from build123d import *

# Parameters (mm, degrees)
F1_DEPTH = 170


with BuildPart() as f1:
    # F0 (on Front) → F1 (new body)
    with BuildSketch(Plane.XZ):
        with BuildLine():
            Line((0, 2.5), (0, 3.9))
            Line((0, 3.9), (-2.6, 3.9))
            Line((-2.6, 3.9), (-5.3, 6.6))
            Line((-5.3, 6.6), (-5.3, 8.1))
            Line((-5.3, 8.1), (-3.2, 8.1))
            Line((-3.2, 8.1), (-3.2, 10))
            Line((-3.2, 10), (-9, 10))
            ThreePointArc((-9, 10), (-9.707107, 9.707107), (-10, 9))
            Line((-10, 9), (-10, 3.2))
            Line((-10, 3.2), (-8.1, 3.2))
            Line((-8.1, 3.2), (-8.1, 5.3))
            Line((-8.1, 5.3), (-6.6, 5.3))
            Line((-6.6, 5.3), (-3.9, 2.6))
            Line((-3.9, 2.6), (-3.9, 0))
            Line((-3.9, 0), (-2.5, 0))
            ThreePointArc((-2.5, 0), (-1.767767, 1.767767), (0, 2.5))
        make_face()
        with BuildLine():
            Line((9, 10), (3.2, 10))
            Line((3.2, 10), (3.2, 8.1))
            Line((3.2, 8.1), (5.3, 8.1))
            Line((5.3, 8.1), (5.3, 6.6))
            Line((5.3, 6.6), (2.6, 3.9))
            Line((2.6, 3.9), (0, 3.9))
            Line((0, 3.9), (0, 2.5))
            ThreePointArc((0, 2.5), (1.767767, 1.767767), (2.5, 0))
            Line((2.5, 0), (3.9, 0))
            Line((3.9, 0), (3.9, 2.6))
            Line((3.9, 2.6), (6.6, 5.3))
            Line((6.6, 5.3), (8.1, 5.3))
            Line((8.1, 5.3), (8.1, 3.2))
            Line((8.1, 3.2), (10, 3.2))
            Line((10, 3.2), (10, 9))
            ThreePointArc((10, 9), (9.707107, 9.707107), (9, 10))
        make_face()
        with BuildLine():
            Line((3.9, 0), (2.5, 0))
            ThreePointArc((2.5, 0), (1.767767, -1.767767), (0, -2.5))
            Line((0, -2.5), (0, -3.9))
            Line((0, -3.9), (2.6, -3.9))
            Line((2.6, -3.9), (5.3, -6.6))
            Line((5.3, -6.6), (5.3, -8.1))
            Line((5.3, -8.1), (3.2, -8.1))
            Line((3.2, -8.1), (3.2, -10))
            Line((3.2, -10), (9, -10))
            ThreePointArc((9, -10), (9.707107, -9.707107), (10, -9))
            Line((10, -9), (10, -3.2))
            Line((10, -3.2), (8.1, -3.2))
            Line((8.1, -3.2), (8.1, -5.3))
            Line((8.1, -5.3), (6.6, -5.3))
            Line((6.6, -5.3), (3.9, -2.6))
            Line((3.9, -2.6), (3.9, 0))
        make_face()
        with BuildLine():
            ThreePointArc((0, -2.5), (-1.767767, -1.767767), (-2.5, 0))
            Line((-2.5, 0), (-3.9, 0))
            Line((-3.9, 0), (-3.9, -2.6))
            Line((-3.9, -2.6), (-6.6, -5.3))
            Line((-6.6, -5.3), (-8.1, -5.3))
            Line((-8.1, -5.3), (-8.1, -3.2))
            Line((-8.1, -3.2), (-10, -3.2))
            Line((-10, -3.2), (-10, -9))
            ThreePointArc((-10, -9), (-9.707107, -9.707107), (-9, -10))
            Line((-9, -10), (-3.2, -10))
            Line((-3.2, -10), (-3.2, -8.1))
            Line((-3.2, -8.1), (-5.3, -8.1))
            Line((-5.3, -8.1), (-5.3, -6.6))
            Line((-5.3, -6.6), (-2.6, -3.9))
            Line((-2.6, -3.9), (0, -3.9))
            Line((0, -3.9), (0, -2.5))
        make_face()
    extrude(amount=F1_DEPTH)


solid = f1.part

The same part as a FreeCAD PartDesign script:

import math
import FreeCAD as App
import Part
import Sketcher

V = App.Vector
Q = App.Units.Quantity

doc = App.newDocument("Part")
body = doc.addObject("PartDesign::Body", "Body")

# Sketch on XZ plane
sketch1 = body.newObject("Sketcher::SketchObject", "Sketch")
sketch1.AttachmentSupport = (doc.getObject("XZ_Plane"), [""])
sketch1.MapMode = "FlatFace"
sketch1.addGeometry(Part.LineSegment(V(-2.6, 3.9, 0), V(-5.3, 6.6, 0)), False)
sketch1.addGeometry(Part.LineSegment(V(-5.3, 6.6, 0), V(-5.3, 8.1, 0)), False)
sketch1.addGeometry(Part.LineSegment(V(-5.3, 8.1, 0), V(-3.2, 8.1, 0)), False)
sketch1.addGeometry(Part.LineSegment(V(-3.2, 8.1, 0), V(-3.2, 10, 0)), False)
sketch1.addGeometry(Part.LineSegment(V(-3.2, 10, 0), V(-9, 10, 0)), False)
sketch1.addGeometry(Part.ArcOfCircle(Part.Circle(V(-9, 9, 0), V(0, 0, 1), 1), math.radians(90), math.radians(180)), False)
sketch1.addGeometry(Part.LineSegment(V(-10, 9, 0), V(-10, 3.2, 0)), False)
sketch1.addGeometry(Part.LineSegment(V(-10, 3.2, 0), V(-8.1, 3.2, 0)), False)
sketch1.addGeometry(Part.LineSegment(V(-8.1, 3.2, 0), V(-8.1, 5.3, 0)), False)
sketch1.addGeometry(Part.LineSegment(V(-8.1, 5.3, 0), V(-6.6, 5.3, 0)), False)
sketch1.addGeometry(Part.LineSegment(V(-6.6, 5.3, 0), V(-3.9, 2.6, 0)), False)
sketch1.addGeometry(Part.LineSegment(V(-3.9, 2.6, 0), V(-3.9, -2.6, 0)), False)
sketch1.addGeometry(Part.LineSegment(V(-3.9, -2.6, 0), V(-6.6, -5.3, 0)), False)
sketch1.addGeometry(Part.LineSegment(V(-6.6, -5.3, 0), V(-8.1, -5.3, 0)), False)
sketch1.addGeometry(Part.LineSegment(V(-8.1, -5.3, 0), V(-8.1, -3.2, 0)), False)
sketch1.addGeometry(Part.LineSegment(V(-8.1, -3.2, 0), V(-10, -3.2, 0)), False)
sketch1.addGeometry(Part.LineSegment(V(-10, -3.2, 0), V(-10, -9, 0)), False)
sketch1.addGeometry(Part.ArcOfCircle(Part.Circle(V(-9, -9, 0), V(0, 0, 1), 1), math.radians(180), math.radians(270)), False)
sketch1.addGeometry(Part.LineSegment(V(-9, -10, 0), V(-3.2, -10, 0)), False)
sketch1.addGeometry(Part.LineSegment(V(-3.2, -10, 0), V(-3.2, -8.1, 0)), False)
sketch1.addGeometry(Part.LineSegment(V(-3.2, -8.1, 0), V(-5.3, -8.1, 0)), False)
sketch1.addGeometry(Part.LineSegment(V(-5.3, -8.1, 0), V(-5.3, -6.6, 0)), False)
sketch1.addGeometry(Part.LineSegment(V(-5.3, -6.6, 0), V(-2.6, -3.9, 0)), False)
sketch1.addGeometry(Part.LineSegment(V(-2.6, -3.9, 0), V(2.6, -3.9, 0)), False)
sketch1.addGeometry(Part.LineSegment(V(2.6, -3.9, 0), V(5.3, -6.6, 0)), False)
sketch1.addGeometry(Part.LineSegment(V(5.3, -6.6, 0), V(5.3, -8.1, 0)), False)
sketch1.addGeometry(Part.LineSegment(V(5.3, -8.1, 0), V(3.2, -8.1, 0)), False)
sketch1.addGeometry(Part.LineSegment(V(3.2, -8.1, 0), V(3.2, -10, 0)), False)
sketch1.addGeometry(Part.LineSegment(V(3.2, -10, 0), V(9, -10, 0)), False)
sketch1.addGeometry(Part.ArcOfCircle(Part.Circle(V(9, -9, 0), V(0, 0, 1), 1), math.radians(-90), math.radians(0)), False)
sketch1.addGeometry(Part.LineSegment(V(10, -9, 0), V(10, -3.2, 0)), False)
sketch1.addGeometry(Part.LineSegment(V(10, -3.2, 0), V(8.1, -3.2, 0)), False)
sketch1.addGeometry(Part.LineSegment(V(8.1, -3.2, 0), V(8.1, -5.3, 0)), False)
sketch1.addGeometry(Part.LineSegment(V(8.1, -5.3, 0), V(6.6, -5.3, 0)), False)
sketch1.addGeometry(Part.LineSegment(V(6.6, -5.3, 0), V(3.9, -2.6, 0)), False)
sketch1.addGeometry(Part.LineSegment(V(3.9, -2.6, 0), V(3.9, 2.6, 0)), False)
sketch1.addGeometry(Part.LineSegment(V(3.9, 2.6, 0), V(6.6, 5.3, 0)), False)
sketch1.addGeometry(Part.LineSegment(V(6.6, 5.3, 0), V(8.1, 5.3, 0)), False)
sketch1.addGeometry(Part.LineSegment(V(8.1, 5.3, 0), V(8.1, 3.2, 0)), False)
sketch1.addGeometry(Part.LineSegment(V(8.1, 3.2, 0), V(10, 3.2, 0)), False)
sketch1.addGeometry(Part.LineSegment(V(10, 3.2, 0), V(10, 9, 0)), False)
sketch1.addGeometry(Part.ArcOfCircle(Part.Circle(V(9, 9, 0), V(0, 0, 1), 1), math.radians(0), math.radians(90)), False)
sketch1.addGeometry(Part.LineSegment(V(9, 10, 0), V(3.2, 10, 0)), False)
sketch1.addGeometry(Part.LineSegment(V(3.2, 10, 0), V(3.2, 8.1, 0)), False)
sketch1.addGeometry(Part.LineSegment(V(3.2, 8.1, 0), V(5.3, 8.1, 0)), False)
sketch1.addGeometry(Part.LineSegment(V(5.3, 8.1, 0), V(5.3, 6.6, 0)), False)
sketch1.addGeometry(Part.LineSegment(V(5.3, 6.6, 0), V(2.6, 3.9, 0)), False)
sketch1.addGeometry(Part.LineSegment(V(2.6, 3.9, 0), V(-2.6, 3.9, 0)), False)
sketch1.addGeometry(Part.ArcOfCircle(Part.Circle(V(0, 0, 0), V(0, 0, 1), 2.5), math.radians(90), math.radians(180)), False)
sketch1.addGeometry(Part.ArcOfCircle(Part.Circle(V(0, 0, 0), V(0, 0, 1), 2.5), math.radians(0), math.radians(90)), False)
sketch1.addGeometry(Part.ArcOfCircle(Part.Circle(V(0, 0, 0), V(0, 0, 1), 2.5), math.radians(-90), math.radians(0)), False)
sketch1.addGeometry(Part.ArcOfCircle(Part.Circle(V(0, 0, 0), V(0, 0, 1), 2.5), math.radians(180), math.radians(270)), False)
sketch1.addConstraint(Sketcher.Constraint("Coincident", 0, 2, 1, 1))
sketch1.addConstraint(Sketcher.Constraint("Coincident", 1, 2, 2, 1))
sketch1.addConstraint(Sketcher.Constraint("Coincident", 2, 2, 3, 1))
sketch1.addConstraint(Sketcher.Constraint("Coincident", 3, 2, 4, 1))
sketch1.addConstraint(Sketcher.Constraint("Tangent", 4, 2, 5, 1))
sketch1.addConstraint(Sketcher.Constraint("Tangent", 5, 2, 6, 1))
sketch1.addConstraint(Sketcher.Constraint("Coincident", 6, 2, 7, 1))
sketch1.addConstraint(Sketcher.Constraint("Coincident", 7, 2, 8, 1))
sketch1.addConstraint(Sketcher.Constraint("Coincident", 8, 2, 9, 1))
sketch1.addConstraint(Sketcher.Constraint("Coincident", 9, 2, 10, 1))
sketch1.addConstraint(Sketcher.Constraint("Coincident", 10, 2, 11, 1))
sketch1.addConstraint(Sketcher.Constraint("Coincident", 11, 2, 12, 1))
sketch1.addConstraint(Sketcher.Constraint("Coincident", 12, 2, 13, 1))
sketch1.addConstraint(Sketcher.Constraint("Coincident", 13, 2, 14, 1))
sketch1.addConstraint(Sketcher.Constraint("Coincident", 14, 2, 15, 1))
sketch1.addConstraint(Sketcher.Constraint("Coincident", 15, 2, 16, 1))
sketch1.addConstraint(Sketcher.Constraint("Tangent", 16, 2, 17, 1))
sketch1.addConstraint(Sketcher.Constraint("Tangent", 17, 2, 18, 1))
sketch1.addConstraint(Sketcher.Constraint("Coincident", 18, 2, 19, 1))
sketch1.addConstraint(Sketcher.Constraint("Coincident", 19, 2, 20, 1))
sketch1.addConstraint(Sketcher.Constraint("Coincident", 20, 2, 21, 1))
sketch1.addConstraint(Sketcher.Constraint("Coincident", 21, 2, 22, 1))
sketch1.addConstraint(Sketcher.Constraint("Coincident", 22, 2, 23, 1))
sketch1.addConstraint(Sketcher.Constraint("Coincident", 23, 2, 24, 1))
sketch1.addConstraint(Sketcher.Constraint("Coincident", 24, 2, 25, 1))
sketch1.addConstraint(Sketcher.Constraint("Coincident", 25, 2, 26, 1))
sketch1.addConstraint(Sketcher.Constraint("Coincident", 26, 2, 27, 1))
sketch1.addConstraint(Sketcher.Constraint("Coincident", 27, 2, 28, 1))
sketch1.addConstraint(Sketcher.Constraint("Tangent", 28, 2, 29, 1))
sketch1.addConstraint(Sketcher.Constraint("Tangent", 29, 2, 30, 1))
sketch1.addConstraint(Sketcher.Constraint("Coincident", 30, 2, 31, 1))
sketch1.addConstraint(Sketcher.Constraint("Coincident", 31, 2, 32, 1))
sketch1.addConstraint(Sketcher.Constraint("Coincident", 32, 2, 33, 1))
sketch1.addConstraint(Sketcher.Constraint("Coincident", 33, 2, 34, 1))
sketch1.addConstraint(Sketcher.Constraint("Coincident", 34, 2, 35, 1))
sketch1.addConstraint(Sketcher.Constraint("Coincident", 35, 2, 36, 1))
sketch1.addConstraint(Sketcher.Constraint("Coincident", 36, 2, 37, 1))
sketch1.addConstraint(Sketcher.Constraint("Coincident", 37, 2, 38, 1))
sketch1.addConstraint(Sketcher.Constraint("Coincident", 38, 2, 39, 1))
sketch1.addConstraint(Sketcher.Constraint("Coincident", 39, 2, 40, 1))
sketch1.addConstraint(Sketcher.Constraint("Tangent", 40, 2, 41, 1))
sketch1.addConstraint(Sketcher.Constraint("Tangent", 41, 2, 42, 1))
sketch1.addConstraint(Sketcher.Constraint("Coincident", 42, 2, 43, 1))
sketch1.addConstraint(Sketcher.Constraint("Coincident", 43, 2, 44, 1))
sketch1.addConstraint(Sketcher.Constraint("Coincident", 44, 2, 45, 1))
sketch1.addConstraint(Sketcher.Constraint("Coincident", 45, 2, 46, 1))
sketch1.addConstraint(Sketcher.Constraint("Coincident", 46, 2, 47, 1))
sketch1.addConstraint(Sketcher.Constraint("Coincident", 47, 2, 0, 1))
sketch1.addConstraint(Sketcher.Constraint("Tangent", 48, 1, 49, 2))
sketch1.addConstraint(Sketcher.Constraint("Tangent", 49, 1, 50, 2))
sketch1.addConstraint(Sketcher.Constraint("Tangent", 50, 1, 51, 2))
sketch1.addConstraint(Sketcher.Constraint("Tangent", 51, 1, 48, 2))
sketch1.addConstraint(Sketcher.Constraint("Vertical", 1))
sketch1.addConstraint(Sketcher.Constraint("Horizontal", 2))
sketch1.addConstraint(Sketcher.Constraint("Vertical", 3))
sketch1.addConstraint(Sketcher.Constraint("Horizontal", 4))
sketch1.addConstraint(Sketcher.Constraint("Vertical", 6))
sketch1.addConstraint(Sketcher.Constraint("Horizontal", 7))
sketch1.addConstraint(Sketcher.Constraint("Vertical", 8))
sketch1.addConstraint(Sketcher.Constraint("Horizontal", 9))
sketch1.addConstraint(Sketcher.Constraint("Vertical", 11))
sketch1.addConstraint(Sketcher.Constraint("Horizontal", 13))
sketch1.addConstraint(Sketcher.Constraint("Vertical", 14))
sketch1.addConstraint(Sketcher.Constraint("Horizontal", 15))
sketch1.addConstraint(Sketcher.Constraint("Vertical", 16))
sketch1.addConstraint(Sketcher.Constraint("Horizontal", 18))
sketch1.addConstraint(Sketcher.Constraint("Vertical", 19))
sketch1.addConstraint(Sketcher.Constraint("Horizontal", 20))
sketch1.addConstraint(Sketcher.Constraint("Vertical", 21))
sketch1.addConstraint(Sketcher.Constraint("Horizontal", 23))
sketch1.addConstraint(Sketcher.Constraint("Vertical", 25))
sketch1.addConstraint(Sketcher.Constraint("Horizontal", 26))
sketch1.addConstraint(Sketcher.Constraint("Vertical", 27))
sketch1.addConstraint(Sketcher.Constraint("Horizontal", 28))
sketch1.addConstraint(Sketcher.Constraint("Vertical", 30))
sketch1.addConstraint(Sketcher.Constraint("Horizontal", 31))
sketch1.addConstraint(Sketcher.Constraint("Vertical", 32))
sketch1.addConstraint(Sketcher.Constraint("Horizontal", 33))
sketch1.addConstraint(Sketcher.Constraint("Vertical", 35))
sketch1.addConstraint(Sketcher.Constraint("Horizontal", 37))
sketch1.addConstraint(Sketcher.Constraint("Vertical", 38))
sketch1.addConstraint(Sketcher.Constraint("Horizontal", 39))
sketch1.addConstraint(Sketcher.Constraint("Vertical", 40))
sketch1.addConstraint(Sketcher.Constraint("Horizontal", 42))
sketch1.addConstraint(Sketcher.Constraint("Vertical", 43))
sketch1.addConstraint(Sketcher.Constraint("Horizontal", 44))
sketch1.addConstraint(Sketcher.Constraint("Vertical", 45))
sketch1.addConstraint(Sketcher.Constraint("Horizontal", 47))
sketch1.addConstraint(Sketcher.Constraint("Coincident", 48, 3, -1, 1))
sketch1.addConstraint(Sketcher.Constraint("Equal", 5, 17))
sketch1.addConstraint(Sketcher.Constraint("Equal", 17, 29))
sketch1.addConstraint(Sketcher.Constraint("Equal", 29, 41))
sketch1.addConstraint(Sketcher.Constraint("Equal", 48, 49))
sketch1.addConstraint(Sketcher.Constraint("Symmetric", 5, 3, 29, 3, -1, 1))
sketch1.addConstraint(Sketcher.Constraint("Symmetric", 17, 3, 41, 3, -1, 1))
sketch1.addConstraint(Sketcher.Constraint("Symmetric", 0, 2, 24, 2, -1, 1))
sketch1.addConstraint(Sketcher.Constraint("Symmetric", 2, 2, 26, 2, -1, 1))
sketch1.addConstraint(Sketcher.Constraint("Symmetric", 7, 2, 31, 2, -1, 1))
sketch1.addConstraint(Sketcher.Constraint("Symmetric", 9, 2, 33, 2, -1, 1))
sketch1.addConstraint(Sketcher.Constraint("Symmetric", 10, 2, 34, 2, -1, 1))
sketch1.addConstraint(Sketcher.Constraint("Symmetric", 12, 2, 36, 2, -1, 1))
sketch1.addConstraint(Sketcher.Constraint("Symmetric", 14, 2, 38, 2, -1, 1))
sketch1.addConstraint(Sketcher.Constraint("Symmetric", 19, 2, 43, 2, -1, 1))
sketch1.addConstraint(Sketcher.Constraint("Symmetric", 21, 2, 45, 2, -1, 1))
sketch1.addConstraint(Sketcher.Constraint("Symmetric", 22, 2, 46, 2, -1, 1))
sketch1.addConstraint(Sketcher.Constraint("Symmetric", 17, 3, 29, 3, -2))
sketch1.addConstraint(Sketcher.Constraint("Symmetric", 21, 2, 24, 2, -2))
sketch1.addConstraint(Sketcher.Constraint("Symmetric", 19, 2, 26, 2, -2))
sketch1.addConstraint(Sketcher.Constraint("Symmetric", 14, 2, 31, 2, -2))
sketch1.addConstraint(Sketcher.Constraint("Symmetric", 12, 2, 33, 2, -2))
sketch1.addConstraint(Sketcher.Constraint("PointOnObject", 48, 1, -2))
sketch1.addConstraint(Sketcher.Constraint("PointOnObject", 49, 1, -1))
sketch1.addConstraint(Sketcher.Constraint("PointOnObject", 50, 1, -2))
sketch1.addConstraint(Sketcher.Constraint("PointOnObject", 51, 1, -1))
sketch1.addConstraint(Sketcher.Constraint("Parallel", 0, 10))
sketch1.addConstraint(Sketcher.Constraint("Perpendicular", 10, 12))
sketch1.addConstraint(Sketcher.Constraint("Parallel", 12, 22))
sketch1.addConstraint(Sketcher.Constraint("Perpendicular", 22, 24))
sketch1.addConstraint(Sketcher.Constraint("Perpendicular", 34, 36))
sketch1.addConstraint(Sketcher.Constraint("Horizontal", 11, 2, 34, 2))
sketch1.addConstraint(Sketcher.Constraint("Equal", 37, 1))
sketch1.addConstraint(Sketcher.Constraint("Equal", 39, 3))
sketch1.addConstraint(Sketcher.Constraint("Equal", 42, 6))
sketch1.addConstraint(Sketcher.Constraint("Equal", 44, 8))
sketch1.addConstraint(Sketcher.Constraint("Equal", 47, 11))
sketch1.addConstraint(Sketcher.Constraint("Equal", 0, 10))
sketch1.addConstraint(Sketcher.Constraint("Radius", 5, Q("0.999999 mm")))
sketch1.addConstraint(Sketcher.Constraint("Radius", 48, Q("2.5 mm")))
sketch1.addConstraint(Sketcher.Constraint("DistanceX", 2, 1, 2, 2, Q("2.1 mm")))
sketch1.addConstraint(Sketcher.Constraint("DistanceX", 4, 2, 4, 1, Q("5.8 mm")))
sketch1.addConstraint(Sketcher.Constraint("DistanceX", 7, 1, 7, 2, Q("1.9 mm")))
sketch1.addConstraint(Sketcher.Constraint("DistanceX", 9, 1, 9, 2, Q("1.5 mm")))
sketch1.addConstraint(Sketcher.Constraint("DistanceX", 23, 1, 23, 2, Q("5.2 mm")))
sketch1.addConstraint(Sketcher.Constraint("DistanceX", 5, 3, -1, 1, Q("9.000001 mm")))
pad1 = body.newObject("PartDesign::Pad", "Pad")
pad1.Profile = sketch1
pad1.Length = 170

doc.recompute()
